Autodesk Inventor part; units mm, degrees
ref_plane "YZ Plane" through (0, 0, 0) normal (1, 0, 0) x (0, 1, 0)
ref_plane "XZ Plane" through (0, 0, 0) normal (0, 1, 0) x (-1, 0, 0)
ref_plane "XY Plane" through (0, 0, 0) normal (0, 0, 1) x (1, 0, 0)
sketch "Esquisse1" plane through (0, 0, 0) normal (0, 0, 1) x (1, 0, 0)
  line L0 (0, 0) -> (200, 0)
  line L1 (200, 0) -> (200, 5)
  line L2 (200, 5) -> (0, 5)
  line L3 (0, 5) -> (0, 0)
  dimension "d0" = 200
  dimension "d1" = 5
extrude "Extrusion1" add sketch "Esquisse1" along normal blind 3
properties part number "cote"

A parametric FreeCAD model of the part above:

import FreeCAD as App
import Part
import Sketcher
from FreeCAD import Vector
Q = App.Units.Quantity

doc = App.newDocument("Part")
body = doc.addObject("PartDesign::Body", "Body")

# Sketch on XY plane
sketch1 = body.newObject("Sketcher::SketchObject", "Sketch")
sketch1.AttachmentSupport = (doc.getObject("XY_Plane"), [""])
sketch1.MapMode = "FlatFace"
sketch1.addGeometry([
    Part.LineSegment(Vector(0, 5, 0), Vector(0, 0, 0)),
    Part.LineSegment(Vector(0, 0, 0), Vector(200, 0, 0)),
    Part.LineSegment(Vector(200, 0, 0), Vector(200, 5, 0)),
    Part.LineSegment(Vector(200, 5, 0), Vector(0, 5, 0)),
], False)
sketch1.addConstraint([
    Sketcher.Constraint("Coincident", 0, 2, 1, 1),
    Sketcher.Constraint("Coincident", 1, 2, 2, 1),
    Sketcher.Constraint("Coincident", 2, 2, 3, 1),
    Sketcher.Constraint("Coincident", 3, 2, 0, 1),
    Sketcher.Constraint("Vertical", 0),
    Sketcher.Constraint("Horizontal", 1),
    Sketcher.Constraint("Vertical", 2),
    Sketcher.Constraint("Horizontal", 3),
    Sketcher.Constraint("Coincident", 0, 2, -1, 1),
    Sketcher.Constraint("DistanceX", 1, 1, 1, 2, Q("200 mm")),
    Sketcher.Constraint("DistanceY", 0, 2, 0, 1, Q("5 mm")),
])
pad1 = body.newObject("PartDesign::Pad", "Pad")
pad1.Profile = sketch1
pad1.Length = 3

doc.recompute()
